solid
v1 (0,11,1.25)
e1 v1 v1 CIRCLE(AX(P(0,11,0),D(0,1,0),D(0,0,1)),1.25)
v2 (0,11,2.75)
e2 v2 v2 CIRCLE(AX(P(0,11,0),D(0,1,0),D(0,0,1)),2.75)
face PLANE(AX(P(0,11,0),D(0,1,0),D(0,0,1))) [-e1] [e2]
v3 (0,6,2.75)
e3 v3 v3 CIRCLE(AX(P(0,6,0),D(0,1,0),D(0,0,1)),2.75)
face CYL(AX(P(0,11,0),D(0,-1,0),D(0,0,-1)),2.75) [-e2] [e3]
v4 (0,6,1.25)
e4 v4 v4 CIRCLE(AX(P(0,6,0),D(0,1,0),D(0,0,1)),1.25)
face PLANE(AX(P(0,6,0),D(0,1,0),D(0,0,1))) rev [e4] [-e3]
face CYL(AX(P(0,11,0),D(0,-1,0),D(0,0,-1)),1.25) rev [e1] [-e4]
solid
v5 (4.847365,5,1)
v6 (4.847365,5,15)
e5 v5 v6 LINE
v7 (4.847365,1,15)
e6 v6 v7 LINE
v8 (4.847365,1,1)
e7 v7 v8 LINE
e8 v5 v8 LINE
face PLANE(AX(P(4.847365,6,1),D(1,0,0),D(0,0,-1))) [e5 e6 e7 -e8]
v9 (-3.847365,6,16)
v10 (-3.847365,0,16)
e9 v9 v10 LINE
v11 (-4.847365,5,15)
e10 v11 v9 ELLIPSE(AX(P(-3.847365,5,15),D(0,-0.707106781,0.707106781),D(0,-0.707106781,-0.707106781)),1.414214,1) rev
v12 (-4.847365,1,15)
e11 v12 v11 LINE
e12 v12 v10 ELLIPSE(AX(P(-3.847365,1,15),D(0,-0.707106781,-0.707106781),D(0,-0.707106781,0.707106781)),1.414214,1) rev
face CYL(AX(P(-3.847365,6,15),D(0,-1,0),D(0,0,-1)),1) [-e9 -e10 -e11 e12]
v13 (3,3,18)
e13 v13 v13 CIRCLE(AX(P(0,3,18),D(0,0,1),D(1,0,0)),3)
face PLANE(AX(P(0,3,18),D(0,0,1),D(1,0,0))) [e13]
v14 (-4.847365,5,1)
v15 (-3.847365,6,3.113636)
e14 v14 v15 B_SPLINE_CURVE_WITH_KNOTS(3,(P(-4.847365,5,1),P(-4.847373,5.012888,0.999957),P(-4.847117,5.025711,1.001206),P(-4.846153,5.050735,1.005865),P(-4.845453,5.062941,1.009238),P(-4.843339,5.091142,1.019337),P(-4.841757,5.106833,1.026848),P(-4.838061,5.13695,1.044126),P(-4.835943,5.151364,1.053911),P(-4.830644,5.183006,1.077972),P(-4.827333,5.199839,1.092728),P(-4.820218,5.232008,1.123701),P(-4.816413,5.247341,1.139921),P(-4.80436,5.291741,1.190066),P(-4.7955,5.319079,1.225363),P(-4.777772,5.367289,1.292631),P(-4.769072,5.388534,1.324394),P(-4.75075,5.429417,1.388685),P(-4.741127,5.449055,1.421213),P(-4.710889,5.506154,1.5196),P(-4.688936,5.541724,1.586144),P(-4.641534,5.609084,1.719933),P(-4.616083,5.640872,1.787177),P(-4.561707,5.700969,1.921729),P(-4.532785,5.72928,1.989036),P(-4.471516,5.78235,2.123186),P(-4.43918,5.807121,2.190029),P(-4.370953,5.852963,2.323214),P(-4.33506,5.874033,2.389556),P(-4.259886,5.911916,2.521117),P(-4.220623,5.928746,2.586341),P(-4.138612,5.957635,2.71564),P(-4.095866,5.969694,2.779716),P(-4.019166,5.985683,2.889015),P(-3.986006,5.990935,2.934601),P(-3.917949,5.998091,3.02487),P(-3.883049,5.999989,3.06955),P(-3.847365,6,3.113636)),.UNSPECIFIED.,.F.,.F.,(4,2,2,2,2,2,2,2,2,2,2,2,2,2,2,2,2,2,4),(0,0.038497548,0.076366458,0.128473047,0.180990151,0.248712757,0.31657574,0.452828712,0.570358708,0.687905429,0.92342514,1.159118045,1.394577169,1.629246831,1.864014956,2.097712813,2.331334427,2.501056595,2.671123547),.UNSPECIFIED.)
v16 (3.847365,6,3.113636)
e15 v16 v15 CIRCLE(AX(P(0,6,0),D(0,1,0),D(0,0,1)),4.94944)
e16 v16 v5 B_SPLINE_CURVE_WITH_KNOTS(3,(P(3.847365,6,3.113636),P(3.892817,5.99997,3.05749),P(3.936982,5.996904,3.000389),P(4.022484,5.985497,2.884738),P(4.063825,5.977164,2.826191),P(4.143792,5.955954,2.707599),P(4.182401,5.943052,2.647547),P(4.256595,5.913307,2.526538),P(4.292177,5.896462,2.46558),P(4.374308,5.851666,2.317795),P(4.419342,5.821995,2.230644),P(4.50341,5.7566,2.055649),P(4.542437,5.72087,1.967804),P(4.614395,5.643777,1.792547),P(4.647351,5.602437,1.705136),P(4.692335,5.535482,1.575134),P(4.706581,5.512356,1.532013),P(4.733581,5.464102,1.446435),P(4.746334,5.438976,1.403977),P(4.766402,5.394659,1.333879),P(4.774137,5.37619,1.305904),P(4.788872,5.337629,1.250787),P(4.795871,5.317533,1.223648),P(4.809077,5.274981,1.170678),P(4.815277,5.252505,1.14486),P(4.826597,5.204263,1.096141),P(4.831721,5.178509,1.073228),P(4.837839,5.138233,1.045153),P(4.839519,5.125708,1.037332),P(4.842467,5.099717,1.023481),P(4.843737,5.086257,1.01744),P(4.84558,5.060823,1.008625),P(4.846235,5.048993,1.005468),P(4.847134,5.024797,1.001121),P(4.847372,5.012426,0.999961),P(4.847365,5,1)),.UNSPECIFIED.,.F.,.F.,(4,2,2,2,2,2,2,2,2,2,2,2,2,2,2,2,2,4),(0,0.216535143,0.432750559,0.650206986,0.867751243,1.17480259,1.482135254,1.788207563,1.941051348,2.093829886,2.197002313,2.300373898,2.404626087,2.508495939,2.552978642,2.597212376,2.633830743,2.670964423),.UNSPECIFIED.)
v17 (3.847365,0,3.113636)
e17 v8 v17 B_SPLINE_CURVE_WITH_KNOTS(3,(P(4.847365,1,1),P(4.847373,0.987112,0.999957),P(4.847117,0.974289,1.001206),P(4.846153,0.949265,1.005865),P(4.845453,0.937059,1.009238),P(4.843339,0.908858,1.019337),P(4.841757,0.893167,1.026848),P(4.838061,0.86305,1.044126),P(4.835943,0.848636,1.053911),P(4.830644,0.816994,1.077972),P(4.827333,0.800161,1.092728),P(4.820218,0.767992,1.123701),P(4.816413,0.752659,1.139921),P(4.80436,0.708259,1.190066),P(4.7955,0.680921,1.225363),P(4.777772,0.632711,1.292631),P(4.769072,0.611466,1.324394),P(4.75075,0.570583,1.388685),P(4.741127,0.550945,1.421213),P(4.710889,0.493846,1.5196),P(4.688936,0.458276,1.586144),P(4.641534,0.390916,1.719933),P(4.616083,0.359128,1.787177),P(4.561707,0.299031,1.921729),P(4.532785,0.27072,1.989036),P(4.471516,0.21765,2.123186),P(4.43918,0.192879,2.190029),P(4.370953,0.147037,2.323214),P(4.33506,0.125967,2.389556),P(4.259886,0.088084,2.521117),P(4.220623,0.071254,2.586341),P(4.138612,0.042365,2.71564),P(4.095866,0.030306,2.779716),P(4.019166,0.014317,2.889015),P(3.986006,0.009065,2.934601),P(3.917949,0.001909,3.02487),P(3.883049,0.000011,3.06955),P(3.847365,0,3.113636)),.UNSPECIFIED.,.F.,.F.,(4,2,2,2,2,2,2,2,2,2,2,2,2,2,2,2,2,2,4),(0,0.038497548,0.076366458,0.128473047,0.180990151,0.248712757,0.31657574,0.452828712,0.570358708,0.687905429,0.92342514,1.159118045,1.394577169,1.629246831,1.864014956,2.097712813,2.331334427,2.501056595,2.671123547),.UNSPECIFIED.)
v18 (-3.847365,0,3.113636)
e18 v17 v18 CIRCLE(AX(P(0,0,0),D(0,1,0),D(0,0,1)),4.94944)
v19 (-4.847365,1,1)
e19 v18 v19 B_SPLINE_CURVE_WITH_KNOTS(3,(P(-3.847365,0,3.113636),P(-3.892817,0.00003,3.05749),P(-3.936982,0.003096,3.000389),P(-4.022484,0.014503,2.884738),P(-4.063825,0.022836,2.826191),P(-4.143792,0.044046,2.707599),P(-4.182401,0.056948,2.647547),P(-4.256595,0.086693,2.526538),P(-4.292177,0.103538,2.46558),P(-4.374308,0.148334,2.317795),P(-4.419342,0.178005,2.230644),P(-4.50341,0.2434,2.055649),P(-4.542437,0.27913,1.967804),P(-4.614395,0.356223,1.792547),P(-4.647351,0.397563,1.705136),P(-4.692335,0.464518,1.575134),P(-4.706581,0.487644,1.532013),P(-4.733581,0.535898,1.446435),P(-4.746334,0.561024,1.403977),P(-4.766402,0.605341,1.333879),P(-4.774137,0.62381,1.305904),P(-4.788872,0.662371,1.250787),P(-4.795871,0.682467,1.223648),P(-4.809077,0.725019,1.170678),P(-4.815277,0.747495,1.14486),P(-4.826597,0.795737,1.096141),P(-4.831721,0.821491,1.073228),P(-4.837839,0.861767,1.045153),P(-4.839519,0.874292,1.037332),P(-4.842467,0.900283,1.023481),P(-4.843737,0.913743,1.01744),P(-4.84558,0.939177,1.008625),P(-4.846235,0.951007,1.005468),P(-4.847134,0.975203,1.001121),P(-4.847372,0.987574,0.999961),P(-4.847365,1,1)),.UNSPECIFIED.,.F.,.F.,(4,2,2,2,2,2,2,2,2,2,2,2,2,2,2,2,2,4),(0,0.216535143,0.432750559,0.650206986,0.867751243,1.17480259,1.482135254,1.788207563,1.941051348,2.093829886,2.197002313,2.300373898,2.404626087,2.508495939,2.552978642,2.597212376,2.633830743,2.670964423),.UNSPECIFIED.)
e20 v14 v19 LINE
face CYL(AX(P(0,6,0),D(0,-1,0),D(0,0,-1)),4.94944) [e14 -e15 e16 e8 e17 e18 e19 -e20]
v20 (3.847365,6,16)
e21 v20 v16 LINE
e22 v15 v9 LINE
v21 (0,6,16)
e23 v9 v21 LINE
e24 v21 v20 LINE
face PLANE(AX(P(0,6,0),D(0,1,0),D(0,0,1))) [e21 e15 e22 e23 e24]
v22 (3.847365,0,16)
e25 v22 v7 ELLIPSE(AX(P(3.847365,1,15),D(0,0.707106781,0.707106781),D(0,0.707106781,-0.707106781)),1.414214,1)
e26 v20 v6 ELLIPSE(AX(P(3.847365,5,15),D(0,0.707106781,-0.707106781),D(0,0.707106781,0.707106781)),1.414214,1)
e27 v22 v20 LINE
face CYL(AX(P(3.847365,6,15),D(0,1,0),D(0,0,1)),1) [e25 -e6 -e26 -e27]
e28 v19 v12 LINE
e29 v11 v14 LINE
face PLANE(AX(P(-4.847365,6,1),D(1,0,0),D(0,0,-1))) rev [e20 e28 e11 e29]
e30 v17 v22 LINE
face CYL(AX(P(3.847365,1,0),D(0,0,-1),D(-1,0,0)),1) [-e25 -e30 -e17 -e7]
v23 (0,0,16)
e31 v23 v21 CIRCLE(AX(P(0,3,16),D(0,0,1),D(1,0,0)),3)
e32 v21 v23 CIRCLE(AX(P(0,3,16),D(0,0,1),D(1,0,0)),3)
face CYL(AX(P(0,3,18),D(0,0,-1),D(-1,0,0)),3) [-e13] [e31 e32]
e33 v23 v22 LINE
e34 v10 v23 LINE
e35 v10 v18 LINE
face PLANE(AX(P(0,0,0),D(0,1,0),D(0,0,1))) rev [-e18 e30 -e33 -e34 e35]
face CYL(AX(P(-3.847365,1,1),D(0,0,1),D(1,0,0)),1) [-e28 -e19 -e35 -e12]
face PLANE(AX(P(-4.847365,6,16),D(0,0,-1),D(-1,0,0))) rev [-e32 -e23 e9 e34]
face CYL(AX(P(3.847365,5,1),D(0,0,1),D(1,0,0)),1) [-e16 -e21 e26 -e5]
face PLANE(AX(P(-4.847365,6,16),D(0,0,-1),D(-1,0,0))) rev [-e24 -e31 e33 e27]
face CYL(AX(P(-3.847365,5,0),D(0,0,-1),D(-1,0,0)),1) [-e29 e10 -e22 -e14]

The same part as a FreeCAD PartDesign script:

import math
import FreeCAD as App
import Part
import Sketcher
from FreeCAD import Vector


def edges_at(feature, points):
    """Names of the edges that pass closest to the given points."""
    edges = feature.Shape.Edges
    near = lambda p: min(range(len(edges)), key=lambda i: edges[i].distToShape(Part.Vertex(*p))[0])
    return sorted({f"Edge{near(p) + 1}" for p in points})

doc = App.newDocument("Part")
body = doc.addObject("PartDesign::Body", "Body")

sketch1 = body.newObject("Sketcher::SketchObject", "Sketch")
sketch1.AttachmentSupport = (doc.getObject("XZ_Plane"), [""])
sketch1.MapMode = "FlatFace"
sketch1.addGeometry(Part.LineSegment(Vector(-4.8, 1, 0), Vector(-4.8, 16, 0)), False)
sketch1.addGeometry(Part.LineSegment(Vector(-4.8, 16, 0), Vector(4.8, 16, 0)), False)
sketch1.addGeometry(Part.LineSegment(Vector(4.8, 16, 0), Vector(4.8, 1, 0)), False)
sketch1.addGeometry(Part.ArcOfCircle(Part.Circle(Vector(0, 0, 0), Vector(0, 0, 1), 4.9), math.radians(168), math.radians(372)), False)
sketch1.addConstraint(Sketcher.Constraint("Coincident", 0, 2, 1, 1))
sketch1.addConstraint(Sketcher.Constraint("Coincident", 1, 2, 2, 1))
sketch1.addConstraint(Sketcher.Constraint("Coincident", 2, 2, 3, 2))
sketch1.addConstraint(Sketcher.Constraint("Coincident", 3, 1, 0, 1))
sketch1.addConstraint(Sketcher.Constraint("Vertical", 0))
sketch1.addConstraint(Sketcher.Constraint("Horizontal", 1))
sketch1.addConstraint(Sketcher.Constraint("Vertical", 2))
sketch1.addConstraint(Sketcher.Constraint("Coincident", 3, 3, -1, 1))
sketch1.addConstraint(Sketcher.Constraint("Horizontal", 2, 2, 3, 1))
sketch1.addConstraint(Sketcher.Constraint("DistanceY", 0, 1, 0, 2, 15.0))
sketch1.addConstraint(Sketcher.Constraint("DistanceY", -1, 1, 0, 2, 16.0))
sketch1.addConstraint(Sketcher.Constraint("Radius", 3, 4.94944))
pad1 = body.newObject("PartDesign::Pad", "Pad")
pad1.Profile = sketch1
pad1.Length = 6
pad1.Reversed = True

sketch2 = body.newObject("Sketcher::SketchObject", "Sketch001")
sketch2.AttachmentSupport = (doc.getObject("XY_Plane"), [""])
sketch2.MapMode = "FlatFace"
sketch2.AttachmentOffset = App.Placement(Vector(0, 0, 16), App.Rotation())
sketch2.addGeometry(Part.Circle(Vector(0, 3, 0), Vector(0, 0, 1), 3), False)
sketch2.addConstraint(Sketcher.Constraint("PointOnObject", 0, 3, -2))
sketch2.addConstraint(Sketcher.Constraint("Diameter", 0, 6.0))
sketch2.addConstraint(Sketcher.Constraint("DistanceY", -1, 1, 0, 3, 3.0))
pad2 = body.newObject("PartDesign::Pad", "Pad001")
pad2.Profile = sketch2
pad2.Length = 2
doc.recompute()

fillet = body.newObject("PartDesign::Fillet", "Fillet")
fillet.Base = (pad2, edges_at(pad2, [
    (-4.847, 6, 8.5),
    (4.847, 6, 8.5),
    (-4.847, 0, 8.5),
    (4.847, 0, 8.5),
    (-4.847, 3, 16),
    (4.847, 3, 16),
]))
fillet.Radius = 1
body2 = doc.addObject("PartDesign::Body", "Body001")

sketch3 = body2.newObject("Sketcher::SketchObject", "Sketch002")
sketch3.AttachmentSupport = (doc.getObject("XZ_Plane001"), [""])
sketch3.MapMode = "FlatFace"
sketch3.AttachmentOffset = App.Placement(Vector(0, 0, -6), App.Rotation())
sketch3.addGeometry(Part.Circle(Vector(0, 0, 0), Vector(0, 0, 1), 2.8), False)
sketch3.addGeometry(Part.Circle(Vector(0, 0, 0), Vector(0, 0, 1), 1.2), False)
sketch3.addConstraint(Sketcher.Constraint("Coincident", 0, 3, -1, 1))
sketch3.addConstraint(Sketcher.Constraint("Coincident", 1, 3, -1, 1))
sketch3.addConstraint(Sketcher.Constraint("Diameter", 0, 5.5))
sketch3.addConstraint(Sketcher.Constraint("Diameter", 1, 2.5))
pad3 = body2.newObject("PartDesign::Pad", "Pad002")
pad3.Profile = sketch3
pad3.Length = 5
pad3.Reversed = True

doc.recompute()
